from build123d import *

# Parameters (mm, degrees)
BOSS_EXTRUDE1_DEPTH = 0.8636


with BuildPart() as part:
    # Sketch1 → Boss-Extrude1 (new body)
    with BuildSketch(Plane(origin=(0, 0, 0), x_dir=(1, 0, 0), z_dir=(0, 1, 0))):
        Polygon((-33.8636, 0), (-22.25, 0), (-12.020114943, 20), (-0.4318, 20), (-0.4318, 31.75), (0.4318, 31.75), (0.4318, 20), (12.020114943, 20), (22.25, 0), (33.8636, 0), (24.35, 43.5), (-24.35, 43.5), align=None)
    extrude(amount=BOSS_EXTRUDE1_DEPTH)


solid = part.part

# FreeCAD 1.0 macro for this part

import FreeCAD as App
import Part
import Sketcher

V = App.Vector

doc = App.newDocument("Part")
body = doc.addObject("PartDesign::Body", "Body")

# Sketch on XZ plane
sketch1 = body.newObject("Sketcher::SketchObject", "Sketch")
sketch1.AttachmentSupport = (doc.getObject("XZ_Plane"), [""])
sketch1.MapMode = "FlatFace"
sketch1.addGeometry([
    Part.LineSegment(V(-33.9, 0, 0), V(-22.2, 0, 0)),  # 0
    Part.LineSegment(V(-22.2, 0, 0), V(-12, -20, 0)),  # 1
    Part.LineSegment(V(-12, -20, 0), V(-0.4, -20, 0)),  # 2
    Part.LineSegment(V(-0.4, -20, 0), V(-0.4, -31.8, 0)),  # 3
    Part.LineSegment(V(-0.4, -31.8, 0), V(0.4, -31.8, 0)),  # 4
    Part.LineSegment(V(0.4, -31.8, 0), V(0.4, -20, 0)),  # 5
    Part.LineSegment(V(0.4, -20, 0), V(12, -20, 0)),  # 6
    Part.LineSegment(V(12, -20, 0), V(22.2, 0, 0)),  # 7
    Part.LineSegment(V(22.2, 0, 0), V(33.9, 0, 0)),  # 8
    Part.LineSegment(V(33.9, 0, 0), V(24.4, -43.5, 0)),  # 9
    Part.LineSegment(V(24.4, -43.5, 0), V(-24.4, -43.5, 0)),  # 10
    Part.LineSegment(V(-24.4, -43.5, 0), V(-33.9, 0, 0)),  # 11
], False)
sketch1.addConstraint([
    Sketcher.Constraint("Coincident", 0, 2, 1, 1),
    Sketcher.Constraint("Coincident", 1, 2, 2, 1),
    Sketcher.Constraint("Coincident", 2, 2, 3, 1),
    Sketcher.Constraint("Coincident", 3, 2, 4, 1),
    Sketcher.Constraint("Coincident", 4, 2, 5, 1),
    Sketcher.Constraint("Coincident", 5, 2, 6, 1),
    Sketcher.Constraint("Coincident", 6, 2, 7, 1),
    Sketcher.Constraint("Coincident", 7, 2, 8, 1),
    Sketcher.Constraint("Coincident", 8, 2, 9, 1),
    Sketcher.Constraint("Coincident", 9, 2, 10, 1),
    Sketcher.Constraint("Coincident", 10, 2, 11, 1),
    Sketcher.Constraint("Coincident", 11, 2, 0, 1),
    Sketcher.Constraint("Horizontal", 0),
    Sketcher.Constraint("Horizontal", 2),
    Sketcher.Constraint("Vertical", 3),
    Sketcher.Constraint("Horizontal", 4),
    Sketcher.Constraint("Vertical", 5),
    Sketcher.Constraint("Horizontal", 6),
    Sketcher.Constraint("Horizontal", 8),
    Sketcher.Constraint("Horizontal", 10),
    Sketcher.Constraint("Symmetric", 0, 2, 7, 2, -1, 1),
    Sketcher.Constraint("Symmetric", 2, 2, 5, 2, -2),
    Sketcher.Constraint("Symmetric", 8, 2, 11, 2, -2),
    Sketcher.Constraint("Equal", 2, 6),
    Sketcher.Constraint("Equal", 9, 11),
    Sketcher.Constraint("DistanceX", 10, 2, 10, 1, 48.7),
    Sketcher.Constraint("DistanceY", 1, 2, -1, 1, 20.0),
    Sketcher.Constraint("DistanceY", 3, 2, 3, 1, 11.75),
    Sketcher.Constraint("DistanceY", 9, 2, -1, 1, 43.5),
    Sketcher.Constraint("DistanceX", 0, 2, -1, 1, 22.25),
    Sketcher.Constraint("DistanceX", 0, 1, 0, 2, 11.6136),
    Sketcher.Constraint("DistanceX", 4, 1, 4, 2, 0.8636),
    Sketcher.Constraint("Distance", 1, 22.464429),
])
pad1 = body.newObject("PartDesign::Pad", "Pad")
pad1.Profile = sketch1
pad1.Length = 0.8636
pad1.Reversed = True

doc.recompute()
